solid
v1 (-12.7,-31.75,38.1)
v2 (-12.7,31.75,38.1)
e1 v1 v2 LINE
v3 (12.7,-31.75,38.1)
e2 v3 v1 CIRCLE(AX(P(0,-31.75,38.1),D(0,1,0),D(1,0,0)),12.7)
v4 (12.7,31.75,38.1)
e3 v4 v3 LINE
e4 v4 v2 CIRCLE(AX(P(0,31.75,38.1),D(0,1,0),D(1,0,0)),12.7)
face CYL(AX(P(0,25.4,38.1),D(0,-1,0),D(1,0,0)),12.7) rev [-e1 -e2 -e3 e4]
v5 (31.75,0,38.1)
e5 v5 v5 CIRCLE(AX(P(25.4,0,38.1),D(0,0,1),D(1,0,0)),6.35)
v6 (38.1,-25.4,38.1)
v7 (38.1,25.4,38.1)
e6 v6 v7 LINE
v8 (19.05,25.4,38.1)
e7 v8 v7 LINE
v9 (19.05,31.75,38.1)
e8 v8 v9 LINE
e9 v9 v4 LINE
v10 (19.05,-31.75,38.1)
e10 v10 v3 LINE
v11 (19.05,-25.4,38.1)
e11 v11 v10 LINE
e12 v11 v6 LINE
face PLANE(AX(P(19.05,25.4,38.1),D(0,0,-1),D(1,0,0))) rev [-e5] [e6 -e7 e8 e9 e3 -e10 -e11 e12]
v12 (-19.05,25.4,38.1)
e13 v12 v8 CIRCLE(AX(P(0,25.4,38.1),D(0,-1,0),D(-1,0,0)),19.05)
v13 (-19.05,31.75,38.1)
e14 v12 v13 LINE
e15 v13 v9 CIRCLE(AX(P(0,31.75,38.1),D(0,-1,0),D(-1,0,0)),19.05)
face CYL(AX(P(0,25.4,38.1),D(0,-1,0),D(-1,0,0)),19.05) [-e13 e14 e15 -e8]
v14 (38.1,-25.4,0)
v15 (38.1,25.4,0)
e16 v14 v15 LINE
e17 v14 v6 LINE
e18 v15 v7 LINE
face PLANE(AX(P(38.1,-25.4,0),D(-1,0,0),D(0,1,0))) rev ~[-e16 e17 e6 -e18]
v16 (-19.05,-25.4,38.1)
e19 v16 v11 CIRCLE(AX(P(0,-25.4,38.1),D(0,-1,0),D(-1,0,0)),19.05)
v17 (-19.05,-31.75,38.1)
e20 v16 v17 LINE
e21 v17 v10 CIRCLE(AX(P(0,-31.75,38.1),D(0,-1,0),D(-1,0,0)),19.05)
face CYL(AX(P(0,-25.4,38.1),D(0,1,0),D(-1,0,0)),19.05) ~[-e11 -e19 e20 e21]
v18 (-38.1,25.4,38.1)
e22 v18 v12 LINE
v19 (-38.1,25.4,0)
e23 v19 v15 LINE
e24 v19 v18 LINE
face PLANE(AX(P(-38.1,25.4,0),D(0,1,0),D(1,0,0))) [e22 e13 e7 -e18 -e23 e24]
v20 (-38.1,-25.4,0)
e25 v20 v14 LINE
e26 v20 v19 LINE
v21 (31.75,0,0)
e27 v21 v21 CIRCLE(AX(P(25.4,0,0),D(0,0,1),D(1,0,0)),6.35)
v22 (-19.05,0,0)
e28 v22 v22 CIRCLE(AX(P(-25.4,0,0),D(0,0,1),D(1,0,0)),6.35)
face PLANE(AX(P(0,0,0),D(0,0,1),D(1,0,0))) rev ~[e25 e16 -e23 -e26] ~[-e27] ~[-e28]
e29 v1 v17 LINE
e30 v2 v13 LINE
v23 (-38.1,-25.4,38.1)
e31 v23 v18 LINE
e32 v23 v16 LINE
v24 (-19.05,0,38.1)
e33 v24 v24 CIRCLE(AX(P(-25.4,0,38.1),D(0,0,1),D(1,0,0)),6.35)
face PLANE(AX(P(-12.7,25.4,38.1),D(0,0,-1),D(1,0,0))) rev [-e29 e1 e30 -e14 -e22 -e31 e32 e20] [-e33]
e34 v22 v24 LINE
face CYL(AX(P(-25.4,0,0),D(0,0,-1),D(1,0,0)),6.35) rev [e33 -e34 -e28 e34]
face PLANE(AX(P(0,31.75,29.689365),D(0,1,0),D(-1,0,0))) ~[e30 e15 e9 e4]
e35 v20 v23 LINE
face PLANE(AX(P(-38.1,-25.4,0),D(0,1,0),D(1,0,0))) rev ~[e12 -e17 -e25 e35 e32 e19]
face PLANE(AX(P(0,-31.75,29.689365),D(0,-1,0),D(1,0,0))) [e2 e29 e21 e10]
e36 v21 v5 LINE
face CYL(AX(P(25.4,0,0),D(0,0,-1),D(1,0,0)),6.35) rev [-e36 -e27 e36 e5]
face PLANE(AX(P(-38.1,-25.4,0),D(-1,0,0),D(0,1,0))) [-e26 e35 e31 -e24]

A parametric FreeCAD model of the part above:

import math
import FreeCAD as App
import Part
import Sketcher
from FreeCAD import Vector
Q = App.Units.Quantity


def add_polygon(sketch, points):
    """Adds a closed chain of lines whose ends are joined by coincident constraints."""
    first, n = sketch.GeometryCount, len(points)
    for a, b in zip(points, points[1:] + points[:1]):
        sketch.addGeometry(Part.LineSegment(App.Vector(*a, 0), App.Vector(*b, 0)), False)
    for i in range(n):
        sketch.addConstraint(Sketcher.Constraint("Coincident", first + i, 2, first + (i + 1) % n, 1))

doc = App.newDocument("Part")
body = doc.addObject("PartDesign::Body", "Body")

sketch1 = body.newObject("Sketcher::SketchObject", "Sketch")
sketch1.AttachmentSupport = (doc.getObject("XY_Plane"), [""])
sketch1.MapMode = "FlatFace"
add_polygon(sketch1, [(-38, 25), (-38, -25), (38, -25), (38, 25)])
sketch1.addGeometry(Part.Circle(Vector(-25, 0, 0), Vector(0, 0, 1), 6), False)
sketch1.addGeometry(Part.Circle(Vector(25, 0, 0), Vector(0, 0, 1), 6), False)
sketch1.addConstraint(Sketcher.Constraint("Vertical", 0))
sketch1.addConstraint(Sketcher.Constraint("Horizontal", 1))
sketch1.addConstraint(Sketcher.Constraint("Vertical", 2))
sketch1.addConstraint(Sketcher.Constraint("Horizontal", 3))
sketch1.addConstraint(Sketcher.Constraint("Equal", 4, 5))
sketch1.addConstraint(Sketcher.Constraint("Symmetric", 4, 3, 5, 3, -1, 1))
sketch1.addConstraint(Sketcher.Constraint("Symmetric", 0, 2, 2, 2, -1, 1))
sketch1.addConstraint(Sketcher.Constraint("PointOnObject", 4, 3, -1))
sketch1.addConstraint(Sketcher.Constraint("Diameter", 4, Q("0.5 in")))
sketch1.addConstraint(Sketcher.Constraint("DistanceX", 1, 1, 1, 2, Q("3 in")))
sketch1.addConstraint(Sketcher.Constraint("DistanceY", 0, 2, 0, 1, Q("2 in")))
sketch1.addConstraint(Sketcher.Constraint("DistanceX", 4, 3, -1, 1, Q("1 in")))
pad1 = body.newObject("PartDesign::Pad", "Pad")
pad1.Profile = sketch1
pad1.Length = Q("1.5 in")

sketch2 = body.newObject("Sketcher::SketchObject", "Sketch001")
sketch2.AttachmentSupport = (doc.getObject("XZ_Plane"), [""])
sketch2.MapMode = "FlatFace"
sketch2.AttachmentOffset = App.Placement(Vector(0, 0, 1 * 25.4), App.Rotation())
sketch2.addGeometry(Part.ArcOfCircle(Part.Circle(Vector(0, 38, 0), Vector(0, 0, 1), 13), math.radians(180), math.radians(360)), False)
sketch2.addGeometry(Part.LineSegment(Vector(13, 38, 0), Vector(-13, 38, 0)), False)
sketch2.addConstraint(Sketcher.Constraint("Coincident", 0, 1, 1, 2))
sketch2.addConstraint(Sketcher.Constraint("Coincident", 1, 1, 0, 2))
sketch2.addConstraint(Sketcher.Constraint("Horizontal", 1))
sketch2.addConstraint(Sketcher.Constraint("PointOnObject", 0, 3, -2))
sketch2.addConstraint(Sketcher.Constraint("Radius", 0, Q("0.5 in")))
sketch2.addConstraint(Sketcher.Constraint("DistanceY", -1, 1, 0, 3, Q("1.5 in")))
sketch2.addConstraint(Sketcher.Constraint("DistanceY", -1, 1, 0, 1, Q("1.5 in")))
pocket1 = body.newObject("PartDesign::Pocket", "Pocket")
pocket1.Profile = sketch2
pocket1.Type = "ThroughAll"

sketch3 = body.newObject("Sketcher::SketchObject", "Sketch002")
sketch3.AttachmentSupport = (doc.getObject("XZ_Plane"), [""])
sketch3.MapMode = "FlatFace"
sketch3.AttachmentOffset = App.Placement(Vector(0, 0, 1 * 25.4), App.Rotation())
sketch3.addGeometry(Part.ArcOfCircle(Part.Circle(Vector(0, 38, 0), Vector(0, 0, 1), 19), math.radians(180), math.radians(360)), False)
sketch3.addGeometry(Part.LineSegment(Vector(19, 38, 0), Vector(13, 38, 0)), False)
sketch3.addGeometry(Part.ArcOfCircle(Part.Circle(Vector(0, 38, 0), Vector(0, 0, 1), 13), math.radians(180), math.radians(360)), False)
sketch3.addGeometry(Part.LineSegment(Vector(-13, 38, 0), Vector(-19, 38, 0)), False)
sketch3.addConstraint(Sketcher.Constraint("Coincident", 0, 2, 1, 1))
sketch3.addConstraint(Sketcher.Constraint("Coincident", 1, 2, 2, 2))
sketch3.addConstraint(Sketcher.Constraint("Coincident", 2, 1, 3, 1))
sketch3.addConstraint(Sketcher.Constraint("Coincident", 3, 2, 0, 1))
sketch3.addConstraint(Sketcher.Constraint("Horizontal", 1))
sketch3.addConstraint(Sketcher.Constraint("Horizontal", 3))
sketch3.addConstraint(Sketcher.Constraint("Coincident", 2, 3, 0, 3))
sketch3.addConstraint(Sketcher.Constraint("Symmetric", 1, 2, 2, 1, -2))
sketch3.addConstraint(Sketcher.Constraint("Horizontal", 2, 3, 0, 2))
sketch3.addConstraint(Sketcher.Constraint("Radius", 2, Q("0.5 in")))
sketch3.addConstraint(Sketcher.Constraint("Radius", 0, Q("0.75 in")))
sketch3.addConstraint(Sketcher.Constraint("DistanceY", -1, 1, 0, 3, Q("1.5 in")))
pad2 = body.newObject("PartDesign::Pad", "Pad001")
pad2.Profile = sketch3
pad2.Length = Q("0.25 in")
body2 = doc.addObject("PartDesign::Body", "Body001")
doc.recompute()

body2.BaseFeature = body
doc.recompute()

mirroring = doc.addObject("Part::Mirroring", "Mirroring")
mirroring.Source = body
mirroring.Base = Vector(0, 0, 0)
mirroring.Normal = Vector(0, -1, 0)
body3 = doc.addObject("PartDesign::Body", "Body002")
body3.BaseFeature = mirroring
boolean = body2.newObject("PartDesign::Boolean", "Boolean")
boolean.Type = "Fuse"
boolean.addObjects([body3])
doc.recompute()
mirroring.Visibility = False

doc.recompute()
